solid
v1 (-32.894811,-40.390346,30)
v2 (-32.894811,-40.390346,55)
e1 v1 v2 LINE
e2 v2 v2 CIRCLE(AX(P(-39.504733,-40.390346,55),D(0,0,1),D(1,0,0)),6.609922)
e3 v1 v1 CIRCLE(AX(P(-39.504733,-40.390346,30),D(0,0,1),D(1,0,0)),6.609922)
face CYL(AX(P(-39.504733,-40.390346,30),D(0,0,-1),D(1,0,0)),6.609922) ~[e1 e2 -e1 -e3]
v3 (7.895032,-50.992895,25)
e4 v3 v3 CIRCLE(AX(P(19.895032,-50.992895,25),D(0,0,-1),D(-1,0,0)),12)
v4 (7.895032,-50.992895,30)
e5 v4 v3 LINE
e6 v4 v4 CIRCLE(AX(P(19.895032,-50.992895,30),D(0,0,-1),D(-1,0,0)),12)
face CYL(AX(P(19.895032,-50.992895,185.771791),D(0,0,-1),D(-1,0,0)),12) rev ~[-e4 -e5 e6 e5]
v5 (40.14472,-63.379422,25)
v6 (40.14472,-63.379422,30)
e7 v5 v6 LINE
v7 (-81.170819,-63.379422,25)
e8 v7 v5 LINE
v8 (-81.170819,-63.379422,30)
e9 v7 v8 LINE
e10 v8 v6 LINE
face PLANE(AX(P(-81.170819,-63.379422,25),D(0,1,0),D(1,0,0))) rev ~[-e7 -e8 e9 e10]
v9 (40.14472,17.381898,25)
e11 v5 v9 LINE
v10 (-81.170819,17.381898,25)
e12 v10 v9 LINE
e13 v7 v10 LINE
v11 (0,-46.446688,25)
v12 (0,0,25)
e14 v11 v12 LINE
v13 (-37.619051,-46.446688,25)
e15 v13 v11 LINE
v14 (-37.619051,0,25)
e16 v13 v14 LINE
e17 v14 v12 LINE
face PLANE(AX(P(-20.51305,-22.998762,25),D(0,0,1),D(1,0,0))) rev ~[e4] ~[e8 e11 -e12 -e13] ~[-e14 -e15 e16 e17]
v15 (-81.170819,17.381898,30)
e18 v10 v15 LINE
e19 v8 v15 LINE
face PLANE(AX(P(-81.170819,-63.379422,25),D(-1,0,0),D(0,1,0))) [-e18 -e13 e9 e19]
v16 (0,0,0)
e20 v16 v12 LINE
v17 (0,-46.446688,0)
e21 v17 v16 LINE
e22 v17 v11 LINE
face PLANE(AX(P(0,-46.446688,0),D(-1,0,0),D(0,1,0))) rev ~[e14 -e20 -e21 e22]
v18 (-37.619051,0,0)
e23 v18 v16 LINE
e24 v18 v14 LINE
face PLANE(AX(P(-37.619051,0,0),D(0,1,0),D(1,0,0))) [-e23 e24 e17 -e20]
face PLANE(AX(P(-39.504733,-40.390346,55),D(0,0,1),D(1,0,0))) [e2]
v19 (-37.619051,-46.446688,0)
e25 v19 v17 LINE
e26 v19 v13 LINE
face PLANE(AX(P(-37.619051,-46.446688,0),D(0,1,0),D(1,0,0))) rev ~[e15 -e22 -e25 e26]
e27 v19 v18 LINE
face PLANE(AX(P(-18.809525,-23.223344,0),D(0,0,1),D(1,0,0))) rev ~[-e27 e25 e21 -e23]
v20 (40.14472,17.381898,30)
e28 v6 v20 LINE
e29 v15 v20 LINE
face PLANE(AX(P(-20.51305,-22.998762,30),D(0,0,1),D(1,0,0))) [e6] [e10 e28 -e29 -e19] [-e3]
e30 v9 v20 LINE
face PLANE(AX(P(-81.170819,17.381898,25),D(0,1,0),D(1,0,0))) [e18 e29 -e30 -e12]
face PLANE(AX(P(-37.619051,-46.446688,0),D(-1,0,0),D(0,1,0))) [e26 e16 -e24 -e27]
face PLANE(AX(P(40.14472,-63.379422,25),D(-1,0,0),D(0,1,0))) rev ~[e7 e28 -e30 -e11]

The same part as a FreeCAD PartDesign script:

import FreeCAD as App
import Part
import Sketcher

V = App.Vector
Q = App.Units.Quantity


def add_polygon(sketch, points):
    """Adds a closed chain of lines whose ends are joined by coincident constraints."""
    first, n = sketch.GeometryCount, len(points)
    for a, b in zip(points, points[1:] + points[:1]):
        sketch.addGeometry(Part.LineSegment(App.Vector(*a, 0), App.Vector(*b, 0)), False)
    for i in range(n):
        sketch.addConstraint(Sketcher.Constraint("Coincident", first + i, 2, first + (i + 1) % n, 1))

doc = App.newDocument("Part")
body = doc.addObject("PartDesign::Body", "Body")

# Sketch on XY plane
sketch1 = doc.addObject("Sketcher::SketchObject", "Sketch")
body.addObject(sketch1)
sketch1.AttachmentSupport = (doc.XY_Plane, [""])
sketch1.MapMode = "FlatFace"
add_polygon(sketch1, [(-38, 0), (-38, -46), (0, -46), (0, 0)])  # lines 0-3
sketch1.addConstraint([
    Sketcher.Constraint("Vertical", 0),
    Sketcher.Constraint("Horizontal", 1),
    Sketcher.Constraint("Vertical", 2),
    Sketcher.Constraint("Horizontal", 3),
    Sketcher.Constraint("Coincident", 2, 2, -1, 1),
    Sketcher.Constraint("DistanceX", 1, 1, 1, 2, Q("37.619051 mm")),
    Sketcher.Constraint("DistanceY", 0, 2, 0, 1, Q("46.446688 mm")),
])
pad1 = doc.addObject("PartDesign::Pad", "Pad")
body.addObject(pad1)
pad1.Profile = sketch1
pad1.Length = 25

# Sketch on XY plane
sketch2 = doc.addObject("Sketcher::SketchObject", "Sketch001")
body.addObject(sketch2)
sketch2.AttachmentSupport = (doc.XY_Plane, [""])
sketch2.MapMode = "FlatFace"
sketch2.AttachmentOffset = App.Placement(V(0, 0, 25), App.Rotation())
add_polygon(sketch2, [(-81, 17), (-81, -63), (40, -63), (40, 17)])  # lines 0-3
sketch2.addConstraint([
    Sketcher.Constraint("Vertical", 0),
    Sketcher.Constraint("Horizontal", 1),
    Sketcher.Constraint("Vertical", 2),
    Sketcher.Constraint("Horizontal", 3),
    Sketcher.Constraint("DistanceX", 1, 1, 1, 2, Q("121.315539 mm")),
    Sketcher.Constraint("DistanceY", 0, 2, 0, 1, Q("80.761321 mm")),
    Sketcher.Constraint("DistanceY", -1, 1, 2, 2, Q("17.381898 mm")),
    Sketcher.Constraint("DistanceX", 0, 2, -1, 1, Q("81.170819 mm")),
])
pad2 = doc.addObject("PartDesign::Pad", "Pad001")
body.addObject(pad2)
pad2.Profile = sketch2
pad2.Length = 5

# Sketch on XY plane
sketch3 = doc.addObject("Sketcher::SketchObject", "Sketch002")
body.addObject(sketch3)
sketch3.AttachmentSupport = (doc.XY_Plane, [""])
sketch3.MapMode = "FlatFace"
sketch3.AttachmentOffset = App.Placement(V(0, 0, 30), App.Rotation())
sketch3.addGeometry(Part.Circle(V(-40, -40, 0), V(0, 0, 1), 7), False)
sketch3.addConstraint([
    Sketcher.Constraint("Diameter", 0, Q("13.219844 mm")),
    Sketcher.Constraint("DistanceX", 0, 3, -1, 1, Q("39.504733 mm")),
    Sketcher.Constraint("DistanceY", 0, 3, -1, 1, Q("40.390346 mm")),
])
pad3 = doc.addObject("PartDesign::Pad", "Pad002")
body.addObject(pad3)
pad3.Profile = sketch3
pad3.Length = 25

# Sketch on XY plane
sketch4 = doc.addObject("Sketcher::SketchObject", "Sketch003")
body.addObject(sketch4)
sketch4.AttachmentSupport = (doc.XY_Plane, [""])
sketch4.MapMode = "FlatFace"
sketch4.AttachmentOffset = App.Placement(V(0, 0, 30), App.Rotation())
sketch4.addGeometry(Part.Circle(V(20, -51, 0), V(0, 0, 1), 12), False)
sketch4.addConstraint([
    Sketcher.Constraint("Diameter", 0, Q("24 mm")),
    Sketcher.Constraint("DistanceX", -1, 1, 0, 3, Q("19.895032 mm")),
    Sketcher.Constraint("DistanceY", 0, 3, -1, 1, Q("50.992895 mm")),
])
doc.recompute()
hole = doc.addObject("PartDesign::Hole", "Hole")
body.addObject(hole)
hole.Profile = sketch4
hole.ThreadType = "None"
hole.Diameter = 24
hole.DepthType = "ThroughAll"

doc.recompute()
